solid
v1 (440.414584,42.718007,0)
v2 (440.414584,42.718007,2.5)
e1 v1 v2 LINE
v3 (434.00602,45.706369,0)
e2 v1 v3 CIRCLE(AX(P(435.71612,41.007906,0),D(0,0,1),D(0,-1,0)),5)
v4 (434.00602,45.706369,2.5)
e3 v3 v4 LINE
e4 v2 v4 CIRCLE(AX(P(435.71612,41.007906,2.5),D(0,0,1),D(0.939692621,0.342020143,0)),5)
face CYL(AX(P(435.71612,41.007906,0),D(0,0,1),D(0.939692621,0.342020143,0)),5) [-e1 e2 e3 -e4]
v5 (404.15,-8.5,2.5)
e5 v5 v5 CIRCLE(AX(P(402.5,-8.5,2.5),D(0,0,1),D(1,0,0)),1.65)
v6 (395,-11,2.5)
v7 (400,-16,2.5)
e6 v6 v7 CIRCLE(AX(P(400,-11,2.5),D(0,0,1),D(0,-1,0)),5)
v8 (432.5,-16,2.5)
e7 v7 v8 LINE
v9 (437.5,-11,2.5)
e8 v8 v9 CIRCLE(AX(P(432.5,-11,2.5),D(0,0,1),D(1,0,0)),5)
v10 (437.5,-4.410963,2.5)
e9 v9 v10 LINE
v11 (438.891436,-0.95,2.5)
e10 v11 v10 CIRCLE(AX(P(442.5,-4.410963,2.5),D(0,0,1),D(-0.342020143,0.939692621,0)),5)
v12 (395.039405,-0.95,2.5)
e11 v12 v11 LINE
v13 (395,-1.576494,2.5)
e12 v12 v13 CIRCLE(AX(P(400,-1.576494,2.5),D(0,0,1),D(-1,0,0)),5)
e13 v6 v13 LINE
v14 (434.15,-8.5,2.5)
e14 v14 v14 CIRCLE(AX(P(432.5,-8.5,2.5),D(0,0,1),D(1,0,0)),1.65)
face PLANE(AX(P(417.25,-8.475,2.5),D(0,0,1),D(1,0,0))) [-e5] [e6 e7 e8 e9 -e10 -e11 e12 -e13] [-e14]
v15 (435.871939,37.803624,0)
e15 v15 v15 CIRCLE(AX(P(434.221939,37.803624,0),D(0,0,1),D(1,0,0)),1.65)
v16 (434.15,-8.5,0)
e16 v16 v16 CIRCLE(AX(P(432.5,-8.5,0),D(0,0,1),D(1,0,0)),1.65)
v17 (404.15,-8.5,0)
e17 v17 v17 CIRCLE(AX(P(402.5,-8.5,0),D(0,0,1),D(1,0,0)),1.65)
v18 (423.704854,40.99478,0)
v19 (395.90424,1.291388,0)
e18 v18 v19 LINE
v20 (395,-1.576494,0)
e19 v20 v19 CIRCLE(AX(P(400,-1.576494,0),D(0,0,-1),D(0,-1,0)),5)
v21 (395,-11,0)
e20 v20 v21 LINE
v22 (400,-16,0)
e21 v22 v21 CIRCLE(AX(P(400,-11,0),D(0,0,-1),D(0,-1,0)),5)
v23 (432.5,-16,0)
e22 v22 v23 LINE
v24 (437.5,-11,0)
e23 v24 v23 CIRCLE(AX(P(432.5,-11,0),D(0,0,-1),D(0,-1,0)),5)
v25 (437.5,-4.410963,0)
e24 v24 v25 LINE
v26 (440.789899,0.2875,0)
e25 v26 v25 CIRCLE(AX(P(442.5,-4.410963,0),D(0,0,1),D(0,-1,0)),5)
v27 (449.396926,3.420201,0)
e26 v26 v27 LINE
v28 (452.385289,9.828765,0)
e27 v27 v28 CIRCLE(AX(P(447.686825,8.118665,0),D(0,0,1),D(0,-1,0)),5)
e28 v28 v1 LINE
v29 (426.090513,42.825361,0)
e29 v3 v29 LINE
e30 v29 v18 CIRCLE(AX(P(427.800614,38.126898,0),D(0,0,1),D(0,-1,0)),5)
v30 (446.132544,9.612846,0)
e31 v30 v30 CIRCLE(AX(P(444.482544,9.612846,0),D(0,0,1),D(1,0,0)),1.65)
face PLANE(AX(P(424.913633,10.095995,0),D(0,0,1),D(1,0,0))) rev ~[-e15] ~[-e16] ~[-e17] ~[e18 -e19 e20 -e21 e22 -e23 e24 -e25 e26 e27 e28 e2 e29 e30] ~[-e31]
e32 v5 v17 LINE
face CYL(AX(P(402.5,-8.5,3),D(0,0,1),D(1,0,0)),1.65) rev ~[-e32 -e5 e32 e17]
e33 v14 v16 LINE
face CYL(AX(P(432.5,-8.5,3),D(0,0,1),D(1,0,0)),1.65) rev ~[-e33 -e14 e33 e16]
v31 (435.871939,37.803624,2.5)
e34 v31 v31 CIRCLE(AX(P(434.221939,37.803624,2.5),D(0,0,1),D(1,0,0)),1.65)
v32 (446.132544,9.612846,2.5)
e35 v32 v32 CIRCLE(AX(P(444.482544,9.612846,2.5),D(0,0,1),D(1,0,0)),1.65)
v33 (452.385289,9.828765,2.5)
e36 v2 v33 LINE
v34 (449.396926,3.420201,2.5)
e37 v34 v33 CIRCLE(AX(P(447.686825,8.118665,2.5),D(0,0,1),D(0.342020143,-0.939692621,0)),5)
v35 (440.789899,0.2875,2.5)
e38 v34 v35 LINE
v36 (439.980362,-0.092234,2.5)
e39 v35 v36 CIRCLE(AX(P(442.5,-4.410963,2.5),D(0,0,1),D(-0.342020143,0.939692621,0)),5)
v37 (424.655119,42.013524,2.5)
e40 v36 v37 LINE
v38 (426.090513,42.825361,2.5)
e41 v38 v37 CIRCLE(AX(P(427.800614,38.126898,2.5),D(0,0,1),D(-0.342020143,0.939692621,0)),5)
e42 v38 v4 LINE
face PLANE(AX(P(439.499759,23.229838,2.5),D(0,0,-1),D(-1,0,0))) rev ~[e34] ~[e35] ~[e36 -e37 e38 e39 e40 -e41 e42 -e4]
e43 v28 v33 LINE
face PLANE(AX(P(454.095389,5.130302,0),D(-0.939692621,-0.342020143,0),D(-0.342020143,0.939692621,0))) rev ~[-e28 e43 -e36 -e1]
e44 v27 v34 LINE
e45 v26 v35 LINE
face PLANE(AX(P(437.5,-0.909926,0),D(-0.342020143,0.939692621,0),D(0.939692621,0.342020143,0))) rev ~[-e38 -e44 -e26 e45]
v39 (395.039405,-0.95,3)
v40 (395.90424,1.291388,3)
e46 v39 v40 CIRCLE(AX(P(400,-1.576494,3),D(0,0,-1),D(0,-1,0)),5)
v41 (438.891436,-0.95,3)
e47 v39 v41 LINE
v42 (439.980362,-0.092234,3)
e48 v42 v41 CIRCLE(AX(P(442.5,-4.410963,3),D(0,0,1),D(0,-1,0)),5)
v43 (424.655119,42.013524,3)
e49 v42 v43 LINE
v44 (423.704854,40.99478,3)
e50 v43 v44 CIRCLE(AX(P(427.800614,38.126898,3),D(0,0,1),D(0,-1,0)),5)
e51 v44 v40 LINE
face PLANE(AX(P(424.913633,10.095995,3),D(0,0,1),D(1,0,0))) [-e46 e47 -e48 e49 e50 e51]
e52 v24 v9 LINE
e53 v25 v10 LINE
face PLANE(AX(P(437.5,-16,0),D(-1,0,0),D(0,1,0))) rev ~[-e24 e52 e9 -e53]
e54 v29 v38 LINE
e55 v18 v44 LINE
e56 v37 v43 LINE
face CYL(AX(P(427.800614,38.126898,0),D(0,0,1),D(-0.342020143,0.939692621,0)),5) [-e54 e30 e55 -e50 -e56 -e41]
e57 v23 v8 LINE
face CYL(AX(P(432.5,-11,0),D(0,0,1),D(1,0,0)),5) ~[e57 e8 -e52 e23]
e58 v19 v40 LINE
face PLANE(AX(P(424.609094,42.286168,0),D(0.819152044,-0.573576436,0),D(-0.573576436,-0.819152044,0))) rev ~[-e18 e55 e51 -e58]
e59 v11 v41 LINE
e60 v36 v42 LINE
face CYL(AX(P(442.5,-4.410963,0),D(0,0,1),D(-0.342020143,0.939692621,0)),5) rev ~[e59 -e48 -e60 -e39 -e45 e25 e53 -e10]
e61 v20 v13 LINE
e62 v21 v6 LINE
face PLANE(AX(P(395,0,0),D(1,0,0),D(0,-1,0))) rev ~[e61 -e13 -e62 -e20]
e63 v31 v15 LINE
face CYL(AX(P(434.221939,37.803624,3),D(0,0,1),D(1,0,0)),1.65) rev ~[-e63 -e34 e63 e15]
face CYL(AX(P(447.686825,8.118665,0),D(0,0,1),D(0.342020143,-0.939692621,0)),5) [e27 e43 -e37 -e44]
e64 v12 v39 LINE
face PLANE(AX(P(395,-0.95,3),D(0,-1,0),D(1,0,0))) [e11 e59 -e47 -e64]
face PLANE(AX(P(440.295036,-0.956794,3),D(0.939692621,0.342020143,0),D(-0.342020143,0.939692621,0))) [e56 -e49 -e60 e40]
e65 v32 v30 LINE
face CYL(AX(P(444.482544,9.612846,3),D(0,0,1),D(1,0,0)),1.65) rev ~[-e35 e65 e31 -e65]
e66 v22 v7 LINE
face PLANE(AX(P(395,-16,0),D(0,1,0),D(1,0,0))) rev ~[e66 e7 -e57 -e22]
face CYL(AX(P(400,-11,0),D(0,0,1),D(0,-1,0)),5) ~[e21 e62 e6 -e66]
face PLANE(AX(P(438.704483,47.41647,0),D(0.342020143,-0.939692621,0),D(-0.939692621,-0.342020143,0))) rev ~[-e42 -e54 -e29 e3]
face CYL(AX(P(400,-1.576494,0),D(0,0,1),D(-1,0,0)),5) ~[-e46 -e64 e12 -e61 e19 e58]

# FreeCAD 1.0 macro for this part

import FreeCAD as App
import Part
import Sketcher
from FreeCAD import Vector
Q = App.Units.Quantity


def edges_at(feature, points):
    """Names of the edges that pass closest to the given points."""
    edges = feature.Shape.Edges
    near = lambda p: min(range(len(edges)), key=lambda i: edges[i].distToShape(Part.Vertex(*p))[0])
    return sorted({f"Edge{near(p) + 1}" for p in points})


def add_polygon(sketch, points):
    """Adds a closed chain of lines whose ends are joined by coincident constraints."""
    first, n = sketch.GeometryCount, len(points)
    for a, b in zip(points, points[1:] + points[:1]):
        sketch.addGeometry(Part.LineSegment(App.Vector(*a, 0), App.Vector(*b, 0)), False)
    for i in range(n):
        sketch.addConstraint(Sketcher.Constraint("Coincident", first + i, 2, first + (i + 1) % n, 1))

doc = App.newDocument("Part")
body = doc.addObject("PartDesign::Body", "Body")

# Sketch on XY plane
sketch1 = body.newObject("Sketcher::SketchObject", "Sketch")
sketch1.AttachmentSupport = (doc.getObject("XY_Plane"), [""])
sketch1.MapMode = "FlatFace"
add_polygon(sketch1, [(438, -1), (454, 5), (439, 47), (425, 42), (395, 0), (395, -16), (438, -16)])  # lines 0-6
sketch1.addConstraint([
    Sketcher.Constraint("Vertical", 4),
    Sketcher.Constraint("Horizontal", 5),
    Sketcher.Constraint("Vertical", 6),
    Sketcher.Constraint("PointOnObject", 3, 2, -1),
    Sketcher.Constraint("Perpendicular", 0, 1),
    Sketcher.Constraint("Perpendicular", 1, 2),
    Sketcher.Constraint("DistanceY", 4, 2, 4, 1, Q("16 mm")),
    Sketcher.Constraint("Angle", 0, Q("20 deg")),
    Sketcher.Constraint("Angle", 3, Q("-125 deg")),
    Sketcher.Constraint("Distance", 1, Q("45 mm")),
    Sketcher.Constraint("Distance", 2, Q("15 mm")),
    Sketcher.Constraint("DistanceX", 5, 1, 5, 2, Q("42.5 mm")),
    Sketcher.Constraint("DistanceX", -1, 1, 3, 2, Q("395 mm")),
    Sketcher.Constraint("Distance", 3, Q("51.621879 mm")),
])
pad1 = body.newObject("PartDesign::Pad", "Pad")
pad1.Profile = sketch1
pad1.Length = 3

# Sketch on XY plane
sketch2 = body.newObject("Sketcher::SketchObject", "Sketch001")
sketch2.AttachmentSupport = (doc.getObject("XY_Plane"), [""])
sketch2.MapMode = "FlatFace"
sketch2.AttachmentOffset = App.Placement(Vector(0, 0, 3), App.Rotation())
sketch2.addGeometry([
    Part.Circle(Vector(402.5, -8.5, 0), Vector(0, 0, 1), 1.6),
    Part.Circle(Vector(432.5, -8.5, 0), Vector(0, 0, 1), 1.6),
    Part.Circle(Vector(434.2, 37.8, 0), Vector(0, 0, 1), 1.6),
    Part.Circle(Vector(444.5, 9.6, 0), Vector(0, 0, 1), 1.6),
], False)
sketch2.addConstraint([
    Sketcher.Constraint("Equal", 0, 1),
    Sketcher.Constraint("Equal", 1, 2),
    Sketcher.Constraint("Equal", 2, 3),
    Sketcher.Constraint("Horizontal", 0, 3, 1, 3),
    Sketcher.Constraint("Diameter", 0, Q("3.3 mm")),
    Sketcher.Constraint("DistanceX", 0, 3, 1, 3, Q("30 mm")),
    Sketcher.Constraint("DistanceX", -1, 1, 0, 3, Q("402.5 mm")),
    Sketcher.Constraint("DistanceY", 0, 3, -1, 1, Q("8.5 mm")),
    Sketcher.Constraint("DistanceX", -1, 1, 2, 3, Q("434.221939 mm")),
    Sketcher.Constraint("DistanceY", 3, 3, 2, 3, Q("28.190779 mm")),
    Sketcher.Constraint("DistanceY", -1, 1, 2, 3, Q("37.803624 mm")),
    Sketcher.Constraint("DistanceX", -1, 1, 3, 3, Q("444.482544 mm")),
])
pocket1 = body.newObject("PartDesign::Pocket", "Pocket")
pocket1.Profile = sketch2
pocket1.Length = 3
doc.recompute()

fillet = body.newObject("PartDesign::Fillet", "Fillet")
fillet.Base = (pocket1, edges_at(pocket1, [
    (437.5, -16, 1.5),
    (395, -16, 1.5),
    (395, 0, 1.5),
    (424.609, 42.286, 1.5),
    (438.704, 47.416, 1.5),
    (454.095, 5.13, 1.5),
    (437.5, -0.91, 1.5),
]))
fillet.Radius = 5

# Sketch on XY plane
sketch3 = body.newObject("Sketcher::SketchObject", "Sketch002")
sketch3.AttachmentSupport = (doc.getObject("XY_Plane"), [""])
sketch3.MapMode = "FlatFace"
sketch3.AttachmentOffset = App.Placement(Vector(0, 0, 3), App.Rotation())
add_polygon(sketch3, [(454, 4), (439, 47), (425, 42), (440, -1)])  # lines 0-3
add_polygon(sketch3, [(395, -1), (395, -16), (440, -16), (440, -1)])  # lines 4-7
sketch3.addConstraint([
    Sketcher.Constraint("Vertical", 4),
    Sketcher.Constraint("Horizontal", 5),
    Sketcher.Constraint("Vertical", 6),
    Sketcher.Constraint("Horizontal", 7),
    Sketcher.Constraint("Perpendicular", 0, 1),
    Sketcher.Constraint("Perpendicular", 1, 2),
    Sketcher.Constraint("Perpendicular", 2, 3),
    Sketcher.Constraint("Angle", 0, Q("110 deg")),
    Sketcher.Constraint("Distance", 0, Q("46 mm")),
    Sketcher.Constraint("DistanceX", 5, 1, 5, 2, Q("44.5 mm")),
    Sketcher.Constraint("DistanceX", -1, 1, 4, 2, Q("395 mm")),
    Sketcher.Constraint("DistanceY", 4, 2, -1, 1, Q("16 mm")),
    Sketcher.Constraint("DistanceY", 4, 2, 4, 1, Q("15.05 mm")),
    Sketcher.Constraint("Distance", 1, Q("15.05 mm")),
    Sketcher.Constraint("DistanceY", -1, 1, 0, 2, Q("47.41647 mm")),
    Sketcher.Constraint("DistanceX", -1, 1, 1, 2, Q("424.562109 mm")),
])
pocket2 = body.newObject("PartDesign::Pocket", "Pocket001")
pocket2.Profile = sketch3
pocket2.Length = 0.5

doc.recompute()
